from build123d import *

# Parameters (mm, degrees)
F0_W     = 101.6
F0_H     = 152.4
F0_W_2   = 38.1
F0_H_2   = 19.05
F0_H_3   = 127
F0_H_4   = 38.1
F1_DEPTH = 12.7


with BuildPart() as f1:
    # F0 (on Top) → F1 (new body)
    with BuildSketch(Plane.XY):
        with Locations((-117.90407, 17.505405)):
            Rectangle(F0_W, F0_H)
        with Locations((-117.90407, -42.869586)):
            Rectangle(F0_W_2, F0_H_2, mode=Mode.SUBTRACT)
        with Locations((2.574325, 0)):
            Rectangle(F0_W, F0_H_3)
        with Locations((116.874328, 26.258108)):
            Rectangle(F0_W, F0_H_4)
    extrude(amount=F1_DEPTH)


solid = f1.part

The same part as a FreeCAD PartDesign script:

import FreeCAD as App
import Part
import Sketcher
Q = App.Units.Quantity

doc = App.newDocument("Part")
body = doc.addObject("PartDesign::Body", "Body")
body.AllowCompound = True

# Sketch on XY plane
sketch1 = body.newObject("Sketcher::SketchObject", "Sketch")
sketch1.AttachmentSupport = (doc.getObject("XY_Plane"), [""])
sketch1.MapMode = "FlatFace"
sketch1.addGeometry(Part.LineSegment(App.Vector(-169, 94, 0), App.Vector(-169, -59, 0)), False)
sketch1.addGeometry(Part.LineSegment(App.Vector(-169, -59, 0), App.Vector(-67, -59, 0)), False)
sketch1.addGeometry(Part.LineSegment(App.Vector(-67, -59, 0), App.Vector(-67, 94, 0)), False)
sketch1.addGeometry(Part.LineSegment(App.Vector(-67, 94, 0), App.Vector(-169, 94, 0)), False)
sketch1.addGeometry(Part.LineSegment(App.Vector(-99, -52, 0), App.Vector(-137, -52, 0)), False)
sketch1.addGeometry(Part.LineSegment(App.Vector(-137, -52, 0), App.Vector(-137, -33, 0)), False)
sketch1.addGeometry(Part.LineSegment(App.Vector(-137, -33, 0), App.Vector(-99, -33, 0)), False)
sketch1.addGeometry(Part.LineSegment(App.Vector(-99, -33, 0), App.Vector(-99, -52, 0)), False)
sketch1.addGeometry(Part.LineSegment(App.Vector(-48, 64, 0), App.Vector(-48, -64, 0)), False)
sketch1.addGeometry(Part.LineSegment(App.Vector(-48, -64, 0), App.Vector(53, -64, 0)), False)
sketch1.addGeometry(Part.LineSegment(App.Vector(53, -64, 0), App.Vector(53, 64, 0)), False)
sketch1.addGeometry(Part.LineSegment(App.Vector(53, 64, 0), App.Vector(-48, 64, 0)), False)
sketch1.addGeometry(Part.LineSegment(App.Vector(66, 45, 0), App.Vector(66, 7, 0)), False)
sketch1.addGeometry(Part.LineSegment(App.Vector(66, 7, 0), App.Vector(168, 7, 0)), False)
sketch1.addGeometry(Part.LineSegment(App.Vector(168, 7, 0), App.Vector(168, 45, 0)), False)
sketch1.addGeometry(Part.LineSegment(App.Vector(168, 45, 0), App.Vector(66, 45, 0)), False)
sketch1.addConstraint(Sketcher.Constraint("Coincident", 0, 2, 1, 1))
sketch1.addConstraint(Sketcher.Constraint("Coincident", 1, 2, 2, 1))
sketch1.addConstraint(Sketcher.Constraint("Coincident", 2, 2, 3, 1))
sketch1.addConstraint(Sketcher.Constraint("Coincident", 3, 2, 0, 1))
sketch1.addConstraint(Sketcher.Constraint("Coincident", 4, 2, 5, 1))
sketch1.addConstraint(Sketcher.Constraint("Coincident", 5, 2, 6, 1))
sketch1.addConstraint(Sketcher.Constraint("Coincident", 6, 2, 7, 1))
sketch1.addConstraint(Sketcher.Constraint("Coincident", 7, 2, 4, 1))
sketch1.addConstraint(Sketcher.Constraint("Coincident", 8, 2, 9, 1))
sketch1.addConstraint(Sketcher.Constraint("Coincident", 9, 2, 10, 1))
sketch1.addConstraint(Sketcher.Constraint("Coincident", 10, 2, 11, 1))
sketch1.addConstraint(Sketcher.Constraint("Coincident", 11, 2, 8, 1))
sketch1.addConstraint(Sketcher.Constraint("Coincident", 12, 2, 13, 1))
sketch1.addConstraint(Sketcher.Constraint("Coincident", 13, 2, 14, 1))
sketch1.addConstraint(Sketcher.Constraint("Coincident", 14, 2, 15, 1))
sketch1.addConstraint(Sketcher.Constraint("Coincident", 15, 2, 12, 1))
sketch1.addConstraint(Sketcher.Constraint("Vertical", 0))
sketch1.addConstraint(Sketcher.Constraint("Horizontal", 1))
sketch1.addConstraint(Sketcher.Constraint("Vertical", 2))
sketch1.addConstraint(Sketcher.Constraint("Horizontal", 3))
sketch1.addConstraint(Sketcher.Constraint("Horizontal", 4))
sketch1.addConstraint(Sketcher.Constraint("Vertical", 5))
sketch1.addConstraint(Sketcher.Constraint("Horizontal", 6))
sketch1.addConstraint(Sketcher.Constraint("Vertical", 7))
sketch1.addConstraint(Sketcher.Constraint("Vertical", 8))
sketch1.addConstraint(Sketcher.Constraint("Horizontal", 9))
sketch1.addConstraint(Sketcher.Constraint("Vertical", 10))
sketch1.addConstraint(Sketcher.Constraint("Horizontal", 11))
sketch1.addConstraint(Sketcher.Constraint("Vertical", 12))
sketch1.addConstraint(Sketcher.Constraint("Horizontal", 13))
sketch1.addConstraint(Sketcher.Constraint("Vertical", 14))
sketch1.addConstraint(Sketcher.Constraint("Horizontal", 15))
sketch1.addConstraint(Sketcher.Constraint("Equal", 3, 9))
sketch1.addConstraint(Sketcher.Constraint("Equal", 11, 13))
sketch1.addConstraint(Sketcher.Constraint("Equal", 6, 12))
sketch1.addConstraint(Sketcher.Constraint("DistanceX", 1, 1, 1, 2, Q("4 in")))
sketch1.addConstraint(Sketcher.Constraint("DistanceY", 0, 2, 0, 1, Q("6 in")))
sketch1.addConstraint(Sketcher.Constraint("DistanceY", 8, 2, 8, 1, Q("5 in")))
sketch1.addConstraint(Sketcher.Constraint("DistanceX", 4, 2, 4, 1, Q("1.5 in")))
sketch1.addConstraint(Sketcher.Constraint("DistanceY", 5, 1, 5, 2, Q("0.75 in")))
sketch1.addConstraint(Sketcher.Constraint("DistanceY", 8, 2, -1, 1, Q("2.5 in")))
sketch1.addConstraint(Sketcher.Constraint("DistanceX", 10, 2, 12, 2, Q("0.5000001 in")))
sketch1.addConstraint(Sketcher.Constraint("DistanceX", 0, 2, 4, 2, Q("1.25 in")))
sketch1.addConstraint(Sketcher.Constraint("DistanceX", 0, 2, -1, 1, 168.70407))
sketch1.addConstraint(Sketcher.Constraint("DistanceY", -1, 1, 12, 2, 7.208108))
sketch1.addConstraint(Sketcher.Constraint("DistanceX", -1, 1, 13, 2, 167.674328))
sketch1.addConstraint(Sketcher.Constraint("DistanceY", 0, 2, 4, 2, 6.300009))
sketch1.addConstraint(Sketcher.Constraint("DistanceY", 0, 2, -1, 1, 58.694595))
pad1 = body.newObject("PartDesign::Pad", "Pad")
pad1.Profile = sketch1
pad1.Length = Q("0.5 in")

doc.recompute()
